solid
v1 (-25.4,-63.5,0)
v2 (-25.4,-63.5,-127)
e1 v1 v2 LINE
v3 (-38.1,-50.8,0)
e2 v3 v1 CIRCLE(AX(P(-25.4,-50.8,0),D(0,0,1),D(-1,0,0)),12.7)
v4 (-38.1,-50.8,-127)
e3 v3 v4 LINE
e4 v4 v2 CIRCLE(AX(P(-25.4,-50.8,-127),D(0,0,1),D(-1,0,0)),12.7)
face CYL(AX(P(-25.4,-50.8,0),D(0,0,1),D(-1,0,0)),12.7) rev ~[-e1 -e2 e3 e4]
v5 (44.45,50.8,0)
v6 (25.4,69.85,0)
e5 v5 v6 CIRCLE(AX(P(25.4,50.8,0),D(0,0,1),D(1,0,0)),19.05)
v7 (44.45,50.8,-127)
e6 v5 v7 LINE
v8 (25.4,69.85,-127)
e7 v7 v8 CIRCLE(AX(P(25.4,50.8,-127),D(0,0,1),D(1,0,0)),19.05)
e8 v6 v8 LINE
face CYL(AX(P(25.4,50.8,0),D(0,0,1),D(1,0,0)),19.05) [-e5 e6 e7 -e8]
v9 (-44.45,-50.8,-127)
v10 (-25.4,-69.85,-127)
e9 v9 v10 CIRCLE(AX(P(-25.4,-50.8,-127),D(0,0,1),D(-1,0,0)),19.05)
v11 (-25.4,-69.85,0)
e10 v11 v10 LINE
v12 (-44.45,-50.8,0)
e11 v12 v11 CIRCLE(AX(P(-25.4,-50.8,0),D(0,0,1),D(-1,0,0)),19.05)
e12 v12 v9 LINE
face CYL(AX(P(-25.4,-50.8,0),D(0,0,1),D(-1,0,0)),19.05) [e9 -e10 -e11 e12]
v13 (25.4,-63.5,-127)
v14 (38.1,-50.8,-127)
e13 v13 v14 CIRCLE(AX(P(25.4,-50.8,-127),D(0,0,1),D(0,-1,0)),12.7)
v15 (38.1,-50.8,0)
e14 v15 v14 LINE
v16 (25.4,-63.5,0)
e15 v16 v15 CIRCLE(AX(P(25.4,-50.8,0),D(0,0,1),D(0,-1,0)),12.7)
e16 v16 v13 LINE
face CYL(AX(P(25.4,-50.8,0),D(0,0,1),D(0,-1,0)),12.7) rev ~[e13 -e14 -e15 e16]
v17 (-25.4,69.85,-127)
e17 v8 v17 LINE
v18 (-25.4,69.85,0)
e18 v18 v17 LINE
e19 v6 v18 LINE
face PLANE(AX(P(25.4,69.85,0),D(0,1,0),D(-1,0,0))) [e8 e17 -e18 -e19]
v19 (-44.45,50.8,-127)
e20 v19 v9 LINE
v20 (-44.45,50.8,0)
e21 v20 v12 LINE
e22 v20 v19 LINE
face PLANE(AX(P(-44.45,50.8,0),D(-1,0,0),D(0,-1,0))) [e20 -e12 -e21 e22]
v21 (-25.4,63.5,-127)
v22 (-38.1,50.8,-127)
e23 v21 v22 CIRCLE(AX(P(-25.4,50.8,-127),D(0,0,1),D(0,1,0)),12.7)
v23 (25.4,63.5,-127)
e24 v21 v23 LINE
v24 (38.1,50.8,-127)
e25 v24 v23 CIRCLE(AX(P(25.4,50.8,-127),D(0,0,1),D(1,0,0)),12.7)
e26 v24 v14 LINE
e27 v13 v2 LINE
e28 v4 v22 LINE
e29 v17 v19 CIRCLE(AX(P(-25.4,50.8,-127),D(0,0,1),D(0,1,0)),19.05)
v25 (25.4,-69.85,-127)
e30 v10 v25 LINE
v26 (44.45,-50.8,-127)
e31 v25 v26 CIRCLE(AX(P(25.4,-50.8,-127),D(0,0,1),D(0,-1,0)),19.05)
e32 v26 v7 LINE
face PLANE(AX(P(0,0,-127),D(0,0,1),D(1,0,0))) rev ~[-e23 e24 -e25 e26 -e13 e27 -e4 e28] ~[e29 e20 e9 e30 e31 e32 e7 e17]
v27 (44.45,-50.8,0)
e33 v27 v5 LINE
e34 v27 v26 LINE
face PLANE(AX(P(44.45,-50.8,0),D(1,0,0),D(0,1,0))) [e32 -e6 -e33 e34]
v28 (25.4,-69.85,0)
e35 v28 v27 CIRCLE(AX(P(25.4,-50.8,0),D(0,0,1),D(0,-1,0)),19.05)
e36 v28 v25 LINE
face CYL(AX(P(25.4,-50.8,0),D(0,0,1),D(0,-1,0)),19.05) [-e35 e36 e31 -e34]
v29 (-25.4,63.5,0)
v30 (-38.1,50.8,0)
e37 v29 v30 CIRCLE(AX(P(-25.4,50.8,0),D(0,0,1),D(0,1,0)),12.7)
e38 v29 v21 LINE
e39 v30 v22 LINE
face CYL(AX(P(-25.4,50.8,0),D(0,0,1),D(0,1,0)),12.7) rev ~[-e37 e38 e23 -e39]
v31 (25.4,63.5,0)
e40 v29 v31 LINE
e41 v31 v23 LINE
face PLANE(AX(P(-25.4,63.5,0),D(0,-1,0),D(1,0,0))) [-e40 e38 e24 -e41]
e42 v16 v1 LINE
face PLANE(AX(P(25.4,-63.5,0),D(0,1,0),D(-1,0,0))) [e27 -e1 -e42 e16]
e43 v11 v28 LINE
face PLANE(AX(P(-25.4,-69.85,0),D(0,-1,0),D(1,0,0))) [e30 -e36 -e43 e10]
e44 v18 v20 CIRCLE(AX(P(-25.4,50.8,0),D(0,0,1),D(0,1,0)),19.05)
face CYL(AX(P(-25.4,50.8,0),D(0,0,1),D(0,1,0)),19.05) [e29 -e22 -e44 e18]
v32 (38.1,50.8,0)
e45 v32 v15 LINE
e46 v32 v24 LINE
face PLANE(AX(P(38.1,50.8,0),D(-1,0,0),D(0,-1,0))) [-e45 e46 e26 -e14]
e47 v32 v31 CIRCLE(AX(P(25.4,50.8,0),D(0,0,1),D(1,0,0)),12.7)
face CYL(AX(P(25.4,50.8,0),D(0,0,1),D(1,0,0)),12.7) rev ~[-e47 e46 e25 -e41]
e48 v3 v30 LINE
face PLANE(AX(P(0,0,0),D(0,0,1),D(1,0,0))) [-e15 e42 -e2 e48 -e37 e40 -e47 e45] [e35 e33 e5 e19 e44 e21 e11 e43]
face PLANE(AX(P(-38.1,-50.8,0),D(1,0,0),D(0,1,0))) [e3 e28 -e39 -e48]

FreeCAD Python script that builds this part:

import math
import FreeCAD as App
import Part
import Sketcher
Q = App.Units.Quantity

doc = App.newDocument("Part")
body = doc.addObject("PartDesign::Body", "Body")

# Sketch on XY plane
sketch1 = doc.addObject("Sketcher::SketchObject", "Sketch")
body.addObject(sketch1)
sketch1.AttachmentSupport = (doc.XY_Plane, [""])
sketch1.MapMode = "FlatFace"
sketch1.addGeometry([
    Part.ArcOfCircle(Part.Circle(App.Vector(25, 51, 0), App.Vector(0, 0, 1), 19), math.radians(0), math.radians(90)),  # 0
    Part.LineSegment(App.Vector(25, 70, 0), App.Vector(-25, 70, 0)),  # 1
    Part.ArcOfCircle(Part.Circle(App.Vector(-25, 51, 0), App.Vector(0, 0, 1), 19), math.radians(90), math.radians(180)),  # 2
    Part.LineSegment(App.Vector(-44, 51, 0), App.Vector(-44, -51, 0)),  # 3
    Part.ArcOfCircle(Part.Circle(App.Vector(-25, -51, 0), App.Vector(0, 0, 1), 19), math.radians(180), math.radians(270)),  # 4
    Part.LineSegment(App.Vector(-25, -70, 0), App.Vector(25, -70, 0)),  # 5
    Part.ArcOfCircle(Part.Circle(App.Vector(25, -51, 0), App.Vector(0, 0, 1), 19), math.radians(-90), math.radians(0)),  # 6
    Part.LineSegment(App.Vector(44, -51, 0), App.Vector(44, 51, 0)),  # 7
    Part.ArcOfCircle(Part.Circle(App.Vector(-25, 51, 0), App.Vector(0, 0, 1), 13), math.radians(90), math.radians(180)),  # 8
    Part.LineSegment(App.Vector(-25, 64, 0), App.Vector(25, 64, 0)),  # 9
    Part.ArcOfCircle(Part.Circle(App.Vector(25, 51, 0), App.Vector(0, 0, 1), 13), math.radians(0), math.radians(90)),  # 10
    Part.LineSegment(App.Vector(38, 51, 0), App.Vector(38, -51, 0)),  # 11
    Part.ArcOfCircle(Part.Circle(App.Vector(25, -51, 0), App.Vector(0, 0, 1), 13), math.radians(-90), math.radians(0)),  # 12
    Part.LineSegment(App.Vector(25, -64, 0), App.Vector(-25, -64, 0)),  # 13
    Part.ArcOfCircle(Part.Circle(App.Vector(-25, -51, 0), App.Vector(0, 0, 1), 13), math.radians(180), math.radians(270)),  # 14
    Part.LineSegment(App.Vector(-38, -51, 0), App.Vector(-38, 51, 0)),  # 15
], False)
sketch1.addConstraint([
    Sketcher.Constraint("Tangent", 0, 2, 1, 1),
    Sketcher.Constraint("Tangent", 1, 2, 2, 1),
    Sketcher.Constraint("Tangent", 2, 2, 3, 1),
    Sketcher.Constraint("Tangent", 3, 2, 4, 1),
    Sketcher.Constraint("Tangent", 4, 2, 5, 1),
    Sketcher.Constraint("Tangent", 5, 2, 6, 1),
    Sketcher.Constraint("Tangent", 6, 2, 7, 1),
    Sketcher.Constraint("Tangent", 7, 2, 0, 1),
    Sketcher.Constraint("Tangent", 8, 1, 9, 1),
    Sketcher.Constraint("Tangent", 9, 2, 10, 2),
    Sketcher.Constraint("Tangent", 10, 1, 11, 1),
    Sketcher.Constraint("Tangent", 11, 2, 12, 2),
    Sketcher.Constraint("Tangent", 12, 1, 13, 1),
    Sketcher.Constraint("Tangent", 13, 2, 14, 2),
    Sketcher.Constraint("Tangent", 14, 1, 15, 1),
    Sketcher.Constraint("Tangent", 15, 2, 8, 2),
    Sketcher.Constraint("Horizontal", 1),
    Sketcher.Constraint("Vertical", 3),
    Sketcher.Constraint("Horizontal", 5),
    Sketcher.Constraint("Vertical", 7),
    Sketcher.Constraint("Horizontal", 9),
    Sketcher.Constraint("Vertical", 11),
    Sketcher.Constraint("Horizontal", 13),
    Sketcher.Constraint("Vertical", 15),
    Sketcher.Constraint("Coincident", 8, 3, 2, 3),
    Sketcher.Constraint("Coincident", 10, 3, 0, 3),
    Sketcher.Constraint("Coincident", 12, 3, 6, 3),
    Sketcher.Constraint("Equal", 0, 2),
    Sketcher.Constraint("Equal", 2, 4),
    Sketcher.Constraint("Equal", 4, 6),
    Sketcher.Constraint("Equal", 12, 14),
    Sketcher.Constraint("Symmetric", 0, 3, 4, 3, -1, 1),
    Sketcher.Constraint("Radius", 8, Q("0.5 in")),
    Sketcher.Constraint("DistanceX", 1, 2, 1, 1, Q("2 in")),
    Sketcher.Constraint("DistanceY", 3, 2, 3, 1, Q("4 in")),
    Sketcher.Constraint("Radius", 0, Q("0.75 in")),
])
pad1 = doc.addObject("PartDesign::Pad", "Pad")
body.addObject(pad1)
pad1.Profile = sketch1
pad1.Length = Q("5 in")
pad1.Reversed = True

doc.recompute()
